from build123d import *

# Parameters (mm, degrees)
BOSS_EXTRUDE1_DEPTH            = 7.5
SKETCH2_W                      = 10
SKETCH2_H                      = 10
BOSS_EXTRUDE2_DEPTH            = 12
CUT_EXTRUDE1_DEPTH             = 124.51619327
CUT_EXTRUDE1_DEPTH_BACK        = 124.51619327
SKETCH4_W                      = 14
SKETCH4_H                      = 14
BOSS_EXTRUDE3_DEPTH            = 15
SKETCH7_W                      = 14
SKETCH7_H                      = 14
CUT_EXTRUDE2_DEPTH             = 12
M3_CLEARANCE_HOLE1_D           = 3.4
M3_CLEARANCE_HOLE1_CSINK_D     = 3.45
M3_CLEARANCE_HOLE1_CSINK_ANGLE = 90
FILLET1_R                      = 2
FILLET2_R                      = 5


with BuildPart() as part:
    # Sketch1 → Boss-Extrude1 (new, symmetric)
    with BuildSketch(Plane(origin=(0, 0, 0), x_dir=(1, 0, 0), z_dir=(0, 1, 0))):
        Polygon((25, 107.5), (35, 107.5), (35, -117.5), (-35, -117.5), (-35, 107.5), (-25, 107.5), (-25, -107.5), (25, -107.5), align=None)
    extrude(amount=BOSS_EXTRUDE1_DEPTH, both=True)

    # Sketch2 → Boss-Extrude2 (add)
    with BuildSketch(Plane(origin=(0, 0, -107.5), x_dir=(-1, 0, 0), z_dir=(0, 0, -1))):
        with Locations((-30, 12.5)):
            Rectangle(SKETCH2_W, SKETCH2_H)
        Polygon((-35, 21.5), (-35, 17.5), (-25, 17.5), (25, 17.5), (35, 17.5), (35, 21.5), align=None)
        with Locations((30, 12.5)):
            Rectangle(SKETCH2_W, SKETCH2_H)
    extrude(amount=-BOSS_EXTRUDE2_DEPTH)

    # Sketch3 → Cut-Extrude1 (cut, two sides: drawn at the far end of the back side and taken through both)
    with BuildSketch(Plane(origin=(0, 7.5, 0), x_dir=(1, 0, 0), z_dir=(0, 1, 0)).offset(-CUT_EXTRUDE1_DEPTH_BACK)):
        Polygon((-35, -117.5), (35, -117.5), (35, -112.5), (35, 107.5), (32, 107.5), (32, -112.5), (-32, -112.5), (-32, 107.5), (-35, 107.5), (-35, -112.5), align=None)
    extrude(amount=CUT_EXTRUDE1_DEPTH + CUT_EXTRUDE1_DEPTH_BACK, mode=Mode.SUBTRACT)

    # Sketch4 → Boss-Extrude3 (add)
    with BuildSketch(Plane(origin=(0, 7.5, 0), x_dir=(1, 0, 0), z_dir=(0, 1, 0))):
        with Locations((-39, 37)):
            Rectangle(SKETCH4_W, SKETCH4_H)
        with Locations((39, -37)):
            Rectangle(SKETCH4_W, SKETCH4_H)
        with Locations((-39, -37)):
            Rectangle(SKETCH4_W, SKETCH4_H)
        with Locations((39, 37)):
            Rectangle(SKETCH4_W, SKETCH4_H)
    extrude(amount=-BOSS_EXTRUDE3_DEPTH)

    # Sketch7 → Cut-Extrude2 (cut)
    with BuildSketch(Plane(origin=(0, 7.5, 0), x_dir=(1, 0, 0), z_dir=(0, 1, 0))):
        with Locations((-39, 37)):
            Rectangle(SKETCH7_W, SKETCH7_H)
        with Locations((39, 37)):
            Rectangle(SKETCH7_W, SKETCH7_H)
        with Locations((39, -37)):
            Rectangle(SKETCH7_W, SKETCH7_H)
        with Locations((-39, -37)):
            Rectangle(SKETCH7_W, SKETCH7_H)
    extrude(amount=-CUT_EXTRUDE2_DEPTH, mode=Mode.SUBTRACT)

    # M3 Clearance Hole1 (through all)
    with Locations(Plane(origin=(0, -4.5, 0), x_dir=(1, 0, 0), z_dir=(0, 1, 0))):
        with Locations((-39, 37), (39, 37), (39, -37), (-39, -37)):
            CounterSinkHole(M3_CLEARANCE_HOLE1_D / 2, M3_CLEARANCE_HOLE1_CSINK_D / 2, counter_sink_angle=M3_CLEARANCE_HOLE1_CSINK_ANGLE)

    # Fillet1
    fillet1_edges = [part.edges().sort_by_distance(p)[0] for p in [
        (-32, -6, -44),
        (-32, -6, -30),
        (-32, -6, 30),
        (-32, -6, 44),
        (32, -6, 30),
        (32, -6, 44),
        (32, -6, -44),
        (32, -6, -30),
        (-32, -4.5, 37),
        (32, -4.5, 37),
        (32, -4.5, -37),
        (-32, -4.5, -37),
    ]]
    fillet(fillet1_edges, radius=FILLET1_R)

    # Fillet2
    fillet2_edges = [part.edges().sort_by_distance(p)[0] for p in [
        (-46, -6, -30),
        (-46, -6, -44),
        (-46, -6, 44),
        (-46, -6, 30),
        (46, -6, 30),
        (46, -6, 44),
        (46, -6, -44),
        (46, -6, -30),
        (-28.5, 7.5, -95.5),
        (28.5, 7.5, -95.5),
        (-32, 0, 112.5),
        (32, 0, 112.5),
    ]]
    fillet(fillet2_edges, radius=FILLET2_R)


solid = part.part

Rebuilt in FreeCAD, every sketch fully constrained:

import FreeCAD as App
import Part
import Sketcher


def edges_at(feature, points):
    """Names of the edges that pass closest to the given points."""
    edges = feature.Shape.Edges
    near = lambda p: min(range(len(edges)), key=lambda i: edges[i].distToShape(Part.Vertex(*p))[0])
    return sorted({f"Edge{near(p) + 1}" for p in points})

doc = App.newDocument("Part")
params = doc.addObject("Spreadsheet::Sheet", "Params")
for row, (alias, value) in enumerate([
    ("sketch1_width", "10 mm"),
    ("sketch1_width2", "50 mm"),
    ("sketch1_height", "215 mm"),
    ("sketch1_height2", "225 mm"),
    ("pad1_length", "15 mm"),
    ("sketch2_width", "10 mm"),
    ("sketch2_width2", "50 mm"),
    ("sketch2_height", "14 mm"),
    ("pad2_length", "12 mm"),
    ("sketch3_width", "70 mm"),
    ("sketch3_width2", "3 mm"),
    ("sketch3_height", "225 mm"),
    ("sketch3_height2", "220 mm"),
    ("sketch4_width", "14 mm"),
    ("pad3_length", "15 mm"),
    ("sketch5_width", "14 mm"),
    ("pocket2_length", "12 mm"),
    ("sketch6_diameter", "3.4 mm"),
    ("hole_diameter", "3.4 mm"),
    ("hole_csink_diameter", "3.45 mm"),
    ("fillet_radius", "2 mm"),
    ("fillet2_radius", "5 mm"),
], start=1):
    params.set(f"A{row}", alias)
    params.set(f"B{row}", "=" + value)
    params.setAlias(f"B{row}", alias)

body = doc.addObject("PartDesign::Body", "Body")

# Sketch on XZ plane
sketch1 = body.newObject("Sketcher::SketchObject", "Sketch")
sketch1.AttachmentSupport = (doc.getObject("XZ_Plane"), [""])
sketch1.MapMode = "FlatFace"
sketch1.addGeometry(Part.LineSegment(App.Vector(35, -108, 0), App.Vector(25, -108, 0)), False)
sketch1.addGeometry(Part.LineSegment(App.Vector(25, -108, 0), App.Vector(25, 108, 0)), False)
sketch1.addGeometry(Part.LineSegment(App.Vector(25, 108, 0), App.Vector(-25, 108, 0)), False)
sketch1.addGeometry(Part.LineSegment(App.Vector(-25, 108, 0), App.Vector(-25, -108, 0)), False)
sketch1.addGeometry(Part.LineSegment(App.Vector(-25, -108, 0), App.Vector(-35, -108, 0)), False)
sketch1.addGeometry(Part.LineSegment(App.Vector(-35, -108, 0), App.Vector(-35, 118, 0)), False)
sketch1.addGeometry(Part.LineSegment(App.Vector(-35, 118, 0), App.Vector(35, 118, 0)), False)
sketch1.addGeometry(Part.LineSegment(App.Vector(35, 118, 0), App.Vector(35, -108, 0)), False)
sketch1.addConstraint(Sketcher.Constraint("Coincident", 0, 2, 1, 1))
sketch1.addConstraint(Sketcher.Constraint("Coincident", 1, 2, 2, 1))
sketch1.addConstraint(Sketcher.Constraint("Coincident", 2, 2, 3, 1))
sketch1.addConstraint(Sketcher.Constraint("Coincident", 3, 2, 4, 1))
sketch1.addConstraint(Sketcher.Constraint("Coincident", 4, 2, 5, 1))
sketch1.addConstraint(Sketcher.Constraint("Coincident", 5, 2, 6, 1))
sketch1.addConstraint(Sketcher.Constraint("Coincident", 6, 2, 7, 1))
sketch1.addConstraint(Sketcher.Constraint("Coincident", 7, 2, 0, 1))
sketch1.addConstraint(Sketcher.Constraint("Horizontal", 0))
sketch1.addConstraint(Sketcher.Constraint("Vertical", 1))
sketch1.addConstraint(Sketcher.Constraint("Horizontal", 2))
sketch1.addConstraint(Sketcher.Constraint("Vertical", 3))
sketch1.addConstraint(Sketcher.Constraint("Horizontal", 4))
sketch1.addConstraint(Sketcher.Constraint("Vertical", 5))
sketch1.addConstraint(Sketcher.Constraint("Horizontal", 6))
sketch1.addConstraint(Sketcher.Constraint("Vertical", 7))
sketch1.addConstraint(Sketcher.Constraint("Symmetric", 0, 2, 2, 2, -1, 1))
sketch1.addConstraint(Sketcher.Constraint("Symmetric", 4, 2, 7, 2, -2))
sketch1.addConstraint(Sketcher.Constraint("DistanceX", 0, 2, 0, 1, 10.0))
sketch1.addConstraint(Sketcher.Constraint("DistanceX", 2, 2, 2, 1, 50.0))
sketch1.addConstraint(Sketcher.Constraint("DistanceY", 1, 1, 1, 2, 215.0))
sketch1.addConstraint(Sketcher.Constraint("DistanceY", 5, 1, 5, 2, 225.0))
sketch1.setExpression("Constraints[18]", "Params.sketch1_width")
sketch1.setExpression("Constraints[19]", "Params.sketch1_width2")
sketch1.setExpression("Constraints[20]", "Params.sketch1_height")
sketch1.setExpression("Constraints[21]", "Params.sketch1_height2")
pad1 = body.newObject("PartDesign::Pad", "Pad")
pad1.Profile = sketch1
pad1.setExpression("Length", "Params.pad1_length")
pad1.Midplane = True

# Sketch on XY plane
sketch2 = body.newObject("Sketcher::SketchObject", "Sketch001")
sketch2.AttachmentSupport = (doc.getObject("XY_Plane"), [""])
sketch2.MapMode = "FlatFace"
sketch2.AttachmentOffset = App.Placement(App.Vector(0, 0, -107.5), App.Rotation())
sketch2.addGeometry(Part.LineSegment(App.Vector(35, 8, 0), App.Vector(25, 8, 0)), False)
sketch2.addGeometry(Part.LineSegment(App.Vector(25, 8, 0), App.Vector(25, 18, 0)), False)
sketch2.addGeometry(Part.LineSegment(App.Vector(25, 18, 0), App.Vector(-25, 18, 0)), False)
sketch2.addGeometry(Part.LineSegment(App.Vector(-25, 18, 0), App.Vector(-25, 8, 0)), False)
sketch2.addGeometry(Part.LineSegment(App.Vector(-25, 8, 0), App.Vector(-35, 8, 0)), False)
sketch2.addGeometry(Part.LineSegment(App.Vector(-35, 8, 0), App.Vector(-35, 22, 0)), False)
sketch2.addGeometry(Part.LineSegment(App.Vector(-35, 22, 0), App.Vector(35, 22, 0)), False)
sketch2.addGeometry(Part.LineSegment(App.Vector(35, 22, 0), App.Vector(35, 8, 0)), False)
sketch2.addConstraint(Sketcher.Constraint("Coincident", 0, 2, 1, 1))
sketch2.addConstraint(Sketcher.Constraint("Coincident", 1, 2, 2, 1))
sketch2.addConstraint(Sketcher.Constraint("Coincident", 2, 2, 3, 1))
sketch2.addConstraint(Sketcher.Constraint("Coincident", 3, 2, 4, 1))
sketch2.addConstraint(Sketcher.Constraint("Coincident", 4, 2, 5, 1))
sketch2.addConstraint(Sketcher.Constraint("Coincident", 5, 2, 6, 1))
sketch2.addConstraint(Sketcher.Constraint("Coincident", 6, 2, 7, 1))
sketch2.addConstraint(Sketcher.Constraint("Coincident", 7, 2, 0, 1))
sketch2.addConstraint(Sketcher.Constraint("Horizontal", 0))
sketch2.addConstraint(Sketcher.Constraint("Vertical", 1))
sketch2.addConstraint(Sketcher.Constraint("Horizontal", 2))
sketch2.addConstraint(Sketcher.Constraint("Vertical", 3))
sketch2.addConstraint(Sketcher.Constraint("Horizontal", 4))
sketch2.addConstraint(Sketcher.Constraint("Vertical", 5))
sketch2.addConstraint(Sketcher.Constraint("Horizontal", 6))
sketch2.addConstraint(Sketcher.Constraint("Vertical", 7))
sketch2.addConstraint(Sketcher.Constraint("Symmetric", 0, 2, 3, 2, -2))
sketch2.addConstraint(Sketcher.Constraint("Equal", 0, 4))
sketch2.addConstraint(Sketcher.Constraint("Equal", 4, 1))
sketch2.addConstraint(Sketcher.Constraint("DistanceX", 0, 2, 0, 1, 10.0))
sketch2.addConstraint(Sketcher.Constraint("DistanceX", 2, 2, 2, 1, 50.0))
sketch2.addConstraint(Sketcher.Constraint("DistanceY", 5, 1, 5, 2, 14.0))
sketch2.addConstraint(Sketcher.Constraint("DistanceY", -1, 1, 0, 2, 7.5))
sketch2.setExpression("Constraints[19]", "Params.sketch2_width")
sketch2.setExpression("Constraints[20]", "Params.sketch2_width2")
sketch2.setExpression("Constraints[21]", "Params.sketch2_height")
pad2 = body.newObject("PartDesign::Pad", "Pad001")
pad2.Profile = sketch2
pad2.setExpression("Length", "Params.pad2_length")

# Sketch on XZ plane
sketch3 = body.newObject("Sketcher::SketchObject", "Sketch002")
sketch3.AttachmentSupport = (doc.getObject("XZ_Plane"), [""])
sketch3.MapMode = "FlatFace"
sketch3.AttachmentOffset = App.Placement(App.Vector(0, 0, -7.5), App.Rotation())
sketch3.addGeometry(Part.LineSegment(App.Vector(-35, 117.5, 0), App.Vector(35, 117.5, 0)), False)
sketch3.addGeometry(Part.LineSegment(App.Vector(35, 117.5, 0), App.Vector(35, -107.5, 0)), False)
sketch3.addGeometry(Part.LineSegment(App.Vector(35, -107.5, 0), App.Vector(32, -107.5, 0)), False)
sketch3.addGeometry(Part.LineSegment(App.Vector(32, -107.5, 0), App.Vector(32, 112.5, 0)), False)
sketch3.addGeometry(Part.LineSegment(App.Vector(32, 112.5, 0), App.Vector(-32, 112.5, 0)), False)
sketch3.addGeometry(Part.LineSegment(App.Vector(-32, 112.5, 0), App.Vector(-32, -107.5, 0)), False)
sketch3.addGeometry(Part.LineSegment(App.Vector(-32, -107.5, 0), App.Vector(-35, -107.5, 0)), False)
sketch3.addGeometry(Part.LineSegment(App.Vector(-35, -107.5, 0), App.Vector(-35, 117.5, 0)), False)
sketch3.addConstraint(Sketcher.Constraint("Coincident", 0, 2, 1, 1))
sketch3.addConstraint(Sketcher.Constraint("Coincident", 1, 2, 2, 1))
sketch3.addConstraint(Sketcher.Constraint("Coincident", 2, 2, 3, 1))
sketch3.addConstraint(Sketcher.Constraint("Coincident", 3, 2, 4, 1))
sketch3.addConstraint(Sketcher.Constraint("Coincident", 4, 2, 5, 1))
sketch3.addConstraint(Sketcher.Constraint("Coincident", 5, 2, 6, 1))
sketch3.addConstraint(Sketcher.Constraint("Coincident", 6, 2, 7, 1))
sketch3.addConstraint(Sketcher.Constraint("Coincident", 7, 2, 0, 1))
sketch3.addConstraint(Sketcher.Constraint("Horizontal", 0))
sketch3.addConstraint(Sketcher.Constraint("Vertical", 1))
sketch3.addConstraint(Sketcher.Constraint("Horizontal", 2))
sketch3.addConstraint(Sketcher.Constraint("Vertical", 3))
sketch3.addConstraint(Sketcher.Constraint("Horizontal", 4))
sketch3.addConstraint(Sketcher.Constraint("Vertical", 5))
sketch3.addConstraint(Sketcher.Constraint("Horizontal", 6))
sketch3.addConstraint(Sketcher.Constraint("Vertical", 7))
sketch3.addConstraint(Sketcher.Constraint("Symmetric", 2, 2, 5, 2, -2))
sketch3.addConstraint(Sketcher.Constraint("Equal", 2, 6))
sketch3.addConstraint(Sketcher.Constraint("DistanceX", 0, 1, 0, 2, 70.0))
sketch3.addConstraint(Sketcher.Constraint("DistanceX", 2, 2, 2, 1, 3.0))
sketch3.addConstraint(Sketcher.Constraint("DistanceY", 1, 2, 1, 1, 225.0))
sketch3.addConstraint(Sketcher.Constraint("DistanceY", 3, 1, 3, 2, 220.0))
sketch3.addConstraint(Sketcher.Constraint("DistanceY", -1, 1, 0, 2, 117.5))
sketch3.setExpression("Constraints[18]", "Params.sketch3_width")
sketch3.setExpression("Constraints[19]", "Params.sketch3_width2")
sketch3.setExpression("Constraints[20]", "Params.sketch3_height")
sketch3.setExpression("Constraints[21]", "Params.sketch3_height2")
pocket1 = body.newObject("PartDesign::Pocket", "Pocket")
pocket1.Profile = sketch3
pocket1.Type = "ThroughAll"
pocket1.Midplane = True

# Sketch on XZ plane
sketch4 = body.newObject("Sketcher::SketchObject", "Sketch003")
sketch4.AttachmentSupport = (doc.getObject("XZ_Plane"), [""])
sketch4.MapMode = "FlatFace"
sketch4.AttachmentOffset = App.Placement(App.Vector(0, 0, -7.5), App.Rotation())
sketch4.addGeometry(Part.LineSegment(App.Vector(-46, -44, 0), App.Vector(-46, -30, 0)), False)
sketch4.addGeometry(Part.LineSegment(App.Vector(-46, -30, 0), App.Vector(-32, -30, 0)), False)
sketch4.addGeometry(Part.LineSegment(App.Vector(-32, -30, 0), App.Vector(-32, -44, 0)), False)
sketch4.addGeometry(Part.LineSegment(App.Vector(-32, -44, 0), App.Vector(-46, -44, 0)), False)
sketch4.addGeometry(Part.LineSegment(App.Vector(32, 30, 0), App.Vector(32, 44, 0)), False)
sketch4.addGeometry(Part.LineSegment(App.Vector(32, 44, 0), App.Vector(46, 44, 0)), False)
sketch4.addGeometry(Part.LineSegment(App.Vector(46, 44, 0), App.Vector(46, 30, 0)), False)
sketch4.addGeometry(Part.LineSegment(App.Vector(46, 30, 0), App.Vector(32, 30, 0)), False)
sketch4.addGeometry(Part.LineSegment(App.Vector(-46, 30, 0), App.Vector(-46, 44, 0)), False)
sketch4.addGeometry(Part.LineSegment(App.Vector(-46, 44, 0), App.Vector(-32, 44, 0)), False)
sketch4.addGeometry(Part.LineSegment(App.Vector(-32, 44, 0), App.Vector(-32, 30, 0)), False)
sketch4.addGeometry(Part.LineSegment(App.Vector(-32, 30, 0), App.Vector(-46, 30, 0)), False)
sketch4.addGeometry(Part.LineSegment(App.Vector(32, -44, 0), App.Vector(32, -30, 0)), False)
sketch4.addGeometry(Part.LineSegment(App.Vector(32, -30, 0), App.Vector(46, -30, 0)), False)
sketch4.addGeometry(Part.LineSegment(App.Vector(46, -30, 0), App.Vector(46, -44, 0)), False)
sketch4.addGeometry(Part.LineSegment(App.Vector(46, -44, 0), App.Vector(32, -44, 0)), False)
sketch4.addConstraint(Sketcher.Constraint("Coincident", 0, 2, 1, 1))
sketch4.addConstraint(Sketcher.Constraint("Coincident", 1, 2, 2, 1))
sketch4.addConstraint(Sketcher.Constraint("Coincident", 2, 2, 3, 1))
sketch4.addConstraint(Sketcher.Constraint("Coincident", 3, 2, 0, 1))
sketch4.addConstraint(Sketcher.Constraint("Coincident", 4, 2, 5, 1))
sketch4.addConstraint(Sketcher.Constraint("Coincident", 5, 2, 6, 1))
sketch4.addConstraint(Sketcher.Constraint("Coincident", 6, 2, 7, 1))
sketch4.addConstraint(Sketcher.Constraint("Coincident", 7, 2, 4, 1))
sketch4.addConstraint(Sketcher.Constraint("Coincident", 8, 2, 9, 1))
sketch4.addConstraint(Sketcher.Constraint("Coincident", 9, 2, 10, 1))
sketch4.addConstraint(Sketcher.Constraint("Coincident", 10, 2, 11, 1))
sketch4.addConstraint(Sketcher.Constraint("Coincident", 11, 2, 8, 1))
sketch4.addConstraint(Sketcher.Constraint("Coincident", 12, 2, 13, 1))
sketch4.addConstraint(Sketcher.Constraint("Coincident", 13, 2, 14, 1))
sketch4.addConstraint(Sketcher.Constraint("Coincident", 14, 2, 15, 1))
sketch4.addConstraint(Sketcher.Constraint("Coincident", 15, 2, 12, 1))
sketch4.addConstraint(Sketcher.Constraint("Vertical", 0))
sketch4.addConstraint(Sketcher.Constraint("Horizontal", 1))
sketch4.addConstraint(Sketcher.Constraint("Vertical", 2))
sketch4.addConstraint(Sketcher.Constraint("Horizontal", 3))
sketch4.addConstraint(Sketcher.Constraint("Vertical", 4))
sketch4.addConstraint(Sketcher.Constraint("Horizontal", 5))
sketch4.addConstraint(Sketcher.Constraint("Vertical", 6))
sketch4.addConstraint(Sketcher.Constraint("Horizontal", 7))
sketch4.addConstraint(Sketcher.Constraint("Vertical", 8))
sketch4.addConstraint(Sketcher.Constraint("Horizontal", 9))
sketch4.addConstraint(Sketcher.Constraint("Vertical", 10))
sketch4.addConstraint(Sketcher.Constraint("Horizontal", 11))
sketch4.addConstraint(Sketcher.Constraint("Vertical", 12))
sketch4.addConstraint(Sketcher.Constraint("Horizontal", 13))
sketch4.addConstraint(Sketcher.Constraint("Vertical", 14))
sketch4.addConstraint(Sketcher.Constraint("Horizontal", 15))
sketch4.addConstraint(Sketcher.Constraint("Symmetric", 2, 2, 4, 2, -1, 1))
sketch4.addConstraint(Sketcher.Constraint("Symmetric", 0, 2, 6, 2, -1, 1))
sketch4.addConstraint(Sketcher.Constraint("Symmetric", 10, 2, 12, 2, -1, 1))
sketch4.addConstraint(Sketcher.Constraint("Symmetric", 8, 2, 14, 2, -1, 1))
sketch4.addConstraint(Sketcher.Constraint("Symmetric", 5, 2, 8, 2, -2))
sketch4.addConstraint(Sketcher.Constraint("Symmetric", 7, 2, 10, 2, -2))
sketch4.addConstraint(Sketcher.Constraint("Equal", 15, 0))
sketch4.addConstraint(Sketcher.Constraint("DistanceX", 1, 1, 1, 2, 14.0))
sketch4.addConstraint(Sketcher.Constraint("DistanceX", 0, 2, -1, 1, 46.0))
sketch4.addConstraint(Sketcher.Constraint("DistanceY", 0, 2, -1, 1, 30.0))
sketch4.setExpression("Constraints[39]", "Params.sketch4_width")
pad3 = body.newObject("PartDesign::Pad", "Pad002")
pad3.Profile = sketch4
pad3.setExpression("Length", "Params.pad3_length")

# Sketch on XZ plane
sketch5 = body.newObject("Sketcher::SketchObject", "Sketch004")
sketch5.AttachmentSupport = (doc.getObject("XZ_Plane"), [""])
sketch5.MapMode = "FlatFace"
sketch5.AttachmentOffset = App.Placement(App.Vector(0, 0, -7.5), App.Rotation())
sketch5.addGeometry(Part.LineSegment(App.Vector(-46, -44, 0), App.Vector(-46, -30, 0)), False)
sketch5.addGeometry(Part.LineSegment(App.Vector(-46, -30, 0), App.Vector(-32, -30, 0)), False)
sketch5.addGeometry(Part.LineSegment(App.Vector(-32, -30, 0), App.Vector(-32, -44, 0)), False)
sketch5.addGeometry(Part.LineSegment(App.Vector(-32, -44, 0), App.Vector(-46, -44, 0)), False)
sketch5.addGeometry(Part.LineSegment(App.Vector(32, -44, 0), App.Vector(32, -30, 0)), False)
sketch5.addGeometry(Part.LineSegment(App.Vector(32, -30, 0), App.Vector(46, -30, 0)), False)
sketch5.addGeometry(Part.LineSegment(App.Vector(46, -30, 0), App.Vector(46, -44, 0)), False)
sketch5.addGeometry(Part.LineSegment(App.Vector(46, -44, 0), App.Vector(32, -44, 0)), False)
sketch5.addGeometry(Part.LineSegment(App.Vector(32, 30, 0), App.Vector(32, 44, 0)), False)
sketch5.addGeometry(Part.LineSegment(App.Vector(32, 44, 0), App.Vector(46, 44, 0)), False)
sketch5.addGeometry(Part.LineSegment(App.Vector(46, 44, 0), App.Vector(46, 30, 0)), False)
sketch5.addGeometry(Part.LineSegment(App.Vector(46, 30, 0), App.Vector(32, 30, 0)), False)
sketch5.addGeometry(Part.LineSegment(App.Vector(-46, 30, 0), App.Vector(-46, 44, 0)), False)
sketch5.addGeometry(Part.LineSegment(App.Vector(-46, 44, 0), App.Vector(-32, 44, 0)), False)
sketch5.addGeometry(Part.LineSegment(App.Vector(-32, 44, 0), App.Vector(-32, 30, 0)), False)
sketch5.addGeometry(Part.LineSegment(App.Vector(-32, 30, 0), App.Vector(-46, 30, 0)), False)
sketch5.addConstraint(Sketcher.Constraint("Coincident", 0, 2, 1, 1))
sketch5.addConstraint(Sketcher.Constraint("Coincident", 1, 2, 2, 1))
sketch5.addConstraint(Sketcher.Constraint("Coincident", 2, 2, 3, 1))
sketch5.addConstraint(Sketcher.Constraint("Coincident", 3, 2, 0, 1))
sketch5.addConstraint(Sketcher.Constraint("Coincident", 4, 2, 5, 1))
sketch5.addConstraint(Sketcher.Constraint("Coincident", 5, 2, 6, 1))
sketch5.addConstraint(Sketcher.Constraint("Coincident", 6, 2, 7, 1))
sketch5.addConstraint(Sketcher.Constraint("Coincident", 7, 2, 4, 1))
sketch5.addConstraint(Sketcher.Constraint("Coincident", 8, 2, 9, 1))
sketch5.addConstraint(Sketcher.Constraint("Coincident", 9, 2, 10, 1))
sketch5.addConstraint(Sketcher.Constraint("Coincident", 10, 2, 11, 1))
sketch5.addConstraint(Sketcher.Constraint("Coincident", 11, 2, 8, 1))
sketch5.addConstraint(Sketcher.Constraint("Coincident", 12, 2, 13, 1))
sketch5.addConstraint(Sketcher.Constraint("Coincident", 13, 2, 14, 1))
sketch5.addConstraint(Sketcher.Constraint("Coincident", 14, 2, 15, 1))
sketch5.addConstraint(Sketcher.Constraint("Coincident", 15, 2, 12, 1))
sketch5.addConstraint(Sketcher.Constraint("Vertical", 0))
sketch5.addConstraint(Sketcher.Constraint("Horizontal", 1))
sketch5.addConstraint(Sketcher.Constraint("Vertical", 2))
sketch5.addConstraint(Sketcher.Constraint("Horizontal", 3))
sketch5.addConstraint(Sketcher.Constraint("Vertical", 4))
sketch5.addConstraint(Sketcher.Constraint("Horizontal", 5))
sketch5.addConstraint(Sketcher.Constraint("Vertical", 6))
sketch5.addConstraint(Sketcher.Constraint("Horizontal", 7))
sketch5.addConstraint(Sketcher.Constraint("Vertical", 8))
sketch5.addConstraint(Sketcher.Constraint("Horizontal", 9))
sketch5.addConstraint(Sketcher.Constraint("Vertical", 10))
sketch5.addConstraint(Sketcher.Constraint("Horizontal", 11))
sketch5.addConstraint(Sketcher.Constraint("Vertical", 12))
sketch5.addConstraint(Sketcher.Constraint("Horizontal", 13))
sketch5.addConstraint(Sketcher.Constraint("Vertical", 14))
sketch5.addConstraint(Sketcher.Constraint("Horizontal", 15))
sketch5.addConstraint(Sketcher.Constraint("Symmetric", 2, 2, 8, 2, -1, 1))
sketch5.addConstraint(Sketcher.Constraint("Symmetric", 0, 2, 10, 2, -1, 1))
sketch5.addConstraint(Sketcher.Constraint("Symmetric", 6, 2, 12, 2, -1, 1))
sketch5.addConstraint(Sketcher.Constraint("Symmetric", 4, 2, 14, 2, -1, 1))
sketch5.addConstraint(Sketcher.Constraint("Symmetric", 1, 2, 4, 2, -2))
sketch5.addConstraint(Sketcher.Constraint("Symmetric", 3, 2, 6, 2, -2))
sketch5.addConstraint(Sketcher.Constraint("Equal", 15, 0))
sketch5.addConstraint(Sketcher.Constraint("DistanceX", 1, 1, 1, 2, 14.0))
sketch5.addConstraint(Sketcher.Constraint("DistanceX", 0, 2, -1, 1, 46.0))
sketch5.addConstraint(Sketcher.Constraint("DistanceY", 0, 2, -1, 1, 30.0))
sketch5.setExpression("Constraints[39]", "Params.sketch5_width")
pocket2 = body.newObject("PartDesign::Pocket", "Pocket001")
pocket2.Profile = sketch5
pocket2.setExpression("Length", "Params.pocket2_length")
pocket2.Reversed = True

# Sketch on XZ plane
sketch6 = body.newObject("Sketcher::SketchObject", "Sketch005")
sketch6.AttachmentSupport = (doc.getObject("XZ_Plane"), [""])
sketch6.MapMode = "FlatFace"
sketch6.AttachmentOffset = App.Placement(App.Vector(0, 0, 4.5), App.Rotation())
sketch6.addGeometry(Part.Circle(App.Vector(-39, -37, 0), App.Vector(0, 0, 1), 1.7), False)
sketch6.addGeometry(Part.Circle(App.Vector(39, -37, 0), App.Vector(0, 0, 1), 1.7), False)
sketch6.addGeometry(Part.Circle(App.Vector(39, 37, 0), App.Vector(0, 0, 1), 1.7), False)
sketch6.addGeometry(Part.Circle(App.Vector(-39, 37, 0), App.Vector(0, 0, 1), 1.7), False)
sketch6.addConstraint(Sketcher.Constraint("Equal", 0, 1))
sketch6.addConstraint(Sketcher.Constraint("Equal", 1, 2))
sketch6.addConstraint(Sketcher.Constraint("Equal", 2, 3))
sketch6.addConstraint(Sketcher.Constraint("Symmetric", 0, 3, 2, 3, -1, 1))
sketch6.addConstraint(Sketcher.Constraint("Symmetric", 1, 3, 3, 3, -1, 1))
sketch6.addConstraint(Sketcher.Constraint("Symmetric", 0, 3, 1, 3, -2))
sketch6.addConstraint(Sketcher.Constraint("Diameter", 0, 3.4))
sketch6.addConstraint(Sketcher.Constraint("DistanceX", 0, 3, -1, 1, 39.0))
sketch6.addConstraint(Sketcher.Constraint("DistanceY", 0, 3, -1, 1, 37.0))
sketch6.setExpression("Constraints[6]", "Params.sketch6_diameter")
doc.recompute()
hole = body.newObject("PartDesign::Hole", "Hole")
hole.Profile = sketch6
hole.ThreadType = "None"
hole.setExpression("Diameter", "Params.hole_diameter")
hole.DepthType = "ThroughAll"
hole.HoleCutType = "Countersink"
hole.setExpression("HoleCutDiameter", "Params.hole_csink_diameter")
hole.HoleCutCountersinkAngle = 90
hole.Reversed = True
doc.recompute()

fillet = body.newObject("PartDesign::Fillet", "Fillet")
fillet.Base = (hole, edges_at(hole, [
    (-32, -6, -44),
    (-32, -6, -30),
    (-32, -6, 30),
    (-32, -6, 44),
    (32, -6, 30),
    (32, -6, 44),
    (32, -6, -44),
    (32, -6, -30),
    (-32, -4.5, 37),
    (32, -4.5, 37),
    (32, -4.5, -37),
    (-32, -4.5, -37),
]))
fillet.setExpression("Radius", "Params.fillet_radius")
doc.recompute()

fillet2 = body.newObject("PartDesign::Fillet", "Fillet001")
fillet2.Base = (fillet, edges_at(fillet, [
    (-46, -6, -30),
    (-46, -6, -44),
    (-46, -6, 44),
    (-46, -6, 30),
    (46, -6, 30),
    (46, -6, 44),
    (46, -6, -44),
    (46, -6, -30),
    (-28.5, 7.5, -95.5),
    (28.5, 7.5, -95.5),
    (-32, 0, 112.5),
    (32, 0, 112.5),
]))
fillet2.setExpression("Radius", "Params.fillet2_radius")

doc.recompute()
